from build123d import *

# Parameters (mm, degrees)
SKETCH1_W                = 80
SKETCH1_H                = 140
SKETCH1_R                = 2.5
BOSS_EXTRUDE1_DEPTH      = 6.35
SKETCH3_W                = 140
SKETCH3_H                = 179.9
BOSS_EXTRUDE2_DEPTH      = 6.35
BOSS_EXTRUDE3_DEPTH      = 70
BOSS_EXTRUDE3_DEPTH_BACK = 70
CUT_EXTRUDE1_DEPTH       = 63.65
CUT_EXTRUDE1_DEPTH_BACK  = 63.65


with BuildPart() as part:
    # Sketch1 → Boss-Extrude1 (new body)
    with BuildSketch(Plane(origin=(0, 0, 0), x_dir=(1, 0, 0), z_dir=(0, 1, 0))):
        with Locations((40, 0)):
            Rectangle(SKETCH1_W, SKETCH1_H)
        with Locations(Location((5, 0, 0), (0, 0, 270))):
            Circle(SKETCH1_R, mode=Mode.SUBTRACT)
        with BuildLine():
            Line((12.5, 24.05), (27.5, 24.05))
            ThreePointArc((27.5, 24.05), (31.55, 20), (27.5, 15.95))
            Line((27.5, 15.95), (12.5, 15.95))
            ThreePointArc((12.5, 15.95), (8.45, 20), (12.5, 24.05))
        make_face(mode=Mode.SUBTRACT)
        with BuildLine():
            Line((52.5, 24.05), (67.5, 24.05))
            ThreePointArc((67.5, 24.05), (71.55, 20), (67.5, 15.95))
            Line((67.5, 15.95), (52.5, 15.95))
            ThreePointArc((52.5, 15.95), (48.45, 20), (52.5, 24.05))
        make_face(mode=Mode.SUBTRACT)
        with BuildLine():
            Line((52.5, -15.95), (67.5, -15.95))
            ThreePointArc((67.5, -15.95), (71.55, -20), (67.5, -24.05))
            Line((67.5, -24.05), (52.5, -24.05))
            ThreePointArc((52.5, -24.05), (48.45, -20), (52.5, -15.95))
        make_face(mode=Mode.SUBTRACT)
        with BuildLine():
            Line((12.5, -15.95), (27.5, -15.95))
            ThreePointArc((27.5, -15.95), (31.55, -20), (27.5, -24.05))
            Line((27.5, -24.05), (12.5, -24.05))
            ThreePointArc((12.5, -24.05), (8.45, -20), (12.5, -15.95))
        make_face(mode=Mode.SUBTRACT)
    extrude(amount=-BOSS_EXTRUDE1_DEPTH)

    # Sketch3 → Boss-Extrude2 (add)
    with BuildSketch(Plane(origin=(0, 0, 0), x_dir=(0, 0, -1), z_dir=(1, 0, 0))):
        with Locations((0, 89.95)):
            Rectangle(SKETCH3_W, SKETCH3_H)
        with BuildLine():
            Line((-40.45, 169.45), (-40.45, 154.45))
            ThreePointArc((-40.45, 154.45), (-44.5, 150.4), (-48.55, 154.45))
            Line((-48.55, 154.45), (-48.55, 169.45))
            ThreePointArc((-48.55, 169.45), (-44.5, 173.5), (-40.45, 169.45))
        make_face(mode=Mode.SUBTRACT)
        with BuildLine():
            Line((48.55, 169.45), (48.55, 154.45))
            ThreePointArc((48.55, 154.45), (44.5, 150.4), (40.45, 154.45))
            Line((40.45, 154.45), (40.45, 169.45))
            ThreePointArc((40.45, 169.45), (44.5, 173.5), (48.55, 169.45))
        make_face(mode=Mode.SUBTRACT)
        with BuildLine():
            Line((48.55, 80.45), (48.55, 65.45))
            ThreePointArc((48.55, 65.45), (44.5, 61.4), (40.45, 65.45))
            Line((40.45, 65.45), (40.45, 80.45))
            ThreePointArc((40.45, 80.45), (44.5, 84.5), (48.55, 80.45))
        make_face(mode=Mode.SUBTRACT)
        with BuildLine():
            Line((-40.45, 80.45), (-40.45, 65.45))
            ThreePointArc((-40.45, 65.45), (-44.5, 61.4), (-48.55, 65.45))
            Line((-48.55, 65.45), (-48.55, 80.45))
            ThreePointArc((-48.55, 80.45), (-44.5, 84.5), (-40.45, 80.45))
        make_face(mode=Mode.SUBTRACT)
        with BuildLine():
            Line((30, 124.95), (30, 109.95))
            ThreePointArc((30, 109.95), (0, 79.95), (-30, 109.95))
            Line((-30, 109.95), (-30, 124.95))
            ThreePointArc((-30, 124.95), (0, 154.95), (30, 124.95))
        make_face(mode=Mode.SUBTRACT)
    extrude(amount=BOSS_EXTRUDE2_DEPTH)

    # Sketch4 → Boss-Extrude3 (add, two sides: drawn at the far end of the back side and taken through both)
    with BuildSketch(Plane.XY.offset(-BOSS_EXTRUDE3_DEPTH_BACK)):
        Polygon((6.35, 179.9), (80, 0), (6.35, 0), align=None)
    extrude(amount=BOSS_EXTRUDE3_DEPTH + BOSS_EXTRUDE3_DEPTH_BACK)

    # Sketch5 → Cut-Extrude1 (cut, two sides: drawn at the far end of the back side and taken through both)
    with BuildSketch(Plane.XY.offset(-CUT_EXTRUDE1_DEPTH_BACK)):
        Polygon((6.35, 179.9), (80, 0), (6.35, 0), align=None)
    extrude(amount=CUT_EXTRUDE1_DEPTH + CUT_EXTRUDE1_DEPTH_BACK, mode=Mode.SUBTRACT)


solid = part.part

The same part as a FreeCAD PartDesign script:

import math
import FreeCAD as App
import Part
import Sketcher
from FreeCAD import Vector
Q = App.Units.Quantity


def add_polygon(sketch, points):
    """Adds a closed chain of lines whose ends are joined by coincident constraints."""
    first, n = sketch.GeometryCount, len(points)
    for a, b in zip(points, points[1:] + points[:1]):
        sketch.addGeometry(Part.LineSegment(App.Vector(*a, 0), App.Vector(*b, 0)), False)
    for i in range(n):
        sketch.addConstraint(Sketcher.Constraint("Coincident", first + i, 2, first + (i + 1) % n, 1))

doc = App.newDocument("Part")
body = doc.addObject("PartDesign::Body", "Body")

sketch1 = body.newObject("Sketcher::SketchObject", "Sketch")
sketch1.AttachmentSupport = (doc.getObject("XZ_Plane"), [""])
sketch1.MapMode = "FlatFace"
add_polygon(sketch1, [(0, -70), (0, 70), (80, 70), (80, -70)])
sketch1.addGeometry(Part.ArcOfCircle(Part.Circle(Vector(12.5, 20, 0), Vector(0, 0, 1), 4), math.radians(90), math.radians(270)), False)
sketch1.addGeometry(Part.LineSegment(Vector(12.5, 15.9, 0), Vector(27.5, 15.9, 0)), False)
sketch1.addGeometry(Part.ArcOfCircle(Part.Circle(Vector(27.5, 20, 0), Vector(0, 0, 1), 4), math.radians(-90), math.radians(90)), False)
sketch1.addGeometry(Part.LineSegment(Vector(27.5, 24.1, 0), Vector(12.5, 24.1, 0)), False)
sketch1.addGeometry(Part.Circle(Vector(5, 0, 0), Vector(0, 0, 1), 2.5), False)
sketch1.addGeometry(Part.ArcOfCircle(Part.Circle(Vector(52.5, 20, 0), Vector(0, 0, 1), 4), math.radians(90), math.radians(270)), False)
sketch1.addGeometry(Part.LineSegment(Vector(52.5, 15.9, 0), Vector(67.5, 15.9, 0)), False)
sketch1.addGeometry(Part.ArcOfCircle(Part.Circle(Vector(67.5, 20, 0), Vector(0, 0, 1), 4), math.radians(-90), math.radians(90)), False)
sketch1.addGeometry(Part.LineSegment(Vector(67.5, 24.1, 0), Vector(52.5, 24.1, 0)), False)
sketch1.addGeometry(Part.ArcOfCircle(Part.Circle(Vector(12.5, -20, 0), Vector(0, 0, 1), 4), math.radians(90), math.radians(270)), False)
sketch1.addGeometry(Part.LineSegment(Vector(12.5, -24.1, 0), Vector(27.5, -24.1, 0)), False)
sketch1.addGeometry(Part.ArcOfCircle(Part.Circle(Vector(27.5, -20, 0), Vector(0, 0, 1), 4), math.radians(-90), math.radians(90)), False)
sketch1.addGeometry(Part.LineSegment(Vector(27.5, -15.9, 0), Vector(12.5, -15.9, 0)), False)
sketch1.addGeometry(Part.ArcOfCircle(Part.Circle(Vector(52.5, -20, 0), Vector(0, 0, 1), 4), math.radians(90), math.radians(270)), False)
sketch1.addGeometry(Part.LineSegment(Vector(52.5, -24.1, 0), Vector(67.5, -24.1, 0)), False)
sketch1.addGeometry(Part.ArcOfCircle(Part.Circle(Vector(67.5, -20, 0), Vector(0, 0, 1), 4), math.radians(-90), math.radians(90)), False)
sketch1.addGeometry(Part.LineSegment(Vector(67.5, -15.9, 0), Vector(52.5, -15.9, 0)), False)
sketch1.addConstraint([
    Sketcher.Constraint("Tangent", 4, 2, 5, 1),
    Sketcher.Constraint("Tangent", 5, 2, 6, 1),
    Sketcher.Constraint("Tangent", 6, 2, 7, 1),
    Sketcher.Constraint("Tangent", 7, 2, 4, 1),
    Sketcher.Constraint("Tangent", 9, 2, 10, 1),
    Sketcher.Constraint("Tangent", 10, 2, 11, 1),
    Sketcher.Constraint("Tangent", 11, 2, 12, 1),
    Sketcher.Constraint("Tangent", 12, 2, 9, 1),
    Sketcher.Constraint("Tangent", 13, 2, 14, 1),
    Sketcher.Constraint("Tangent", 14, 2, 15, 1),
    Sketcher.Constraint("Tangent", 15, 2, 16, 1),
    Sketcher.Constraint("Tangent", 16, 2, 13, 1),
    Sketcher.Constraint("Tangent", 17, 2, 18, 1),
    Sketcher.Constraint("Tangent", 18, 2, 19, 1),
    Sketcher.Constraint("Tangent", 19, 2, 20, 1),
    Sketcher.Constraint("Tangent", 20, 2, 17, 1),
    Sketcher.Constraint("Vertical", 0),
    Sketcher.Constraint("Horizontal", 1),
    Sketcher.Constraint("Vertical", 2),
    Sketcher.Constraint("Horizontal", 3),
    Sketcher.Constraint("Horizontal", 5),
    Sketcher.Constraint("Horizontal", 7),
    Sketcher.Constraint("Horizontal", 10),
    Sketcher.Constraint("Horizontal", 12),
    Sketcher.Constraint("Horizontal", 14),
    Sketcher.Constraint("Horizontal", 16),
    Sketcher.Constraint("Horizontal", 18),
    Sketcher.Constraint("Horizontal", 20),
    Sketcher.Constraint("Equal", 6, 9),
    Sketcher.Constraint("Equal", 11, 13),
    Sketcher.Constraint("Equal", 15, 17),
    Sketcher.Constraint("Symmetric", 0, 2, 3, 2, -1, 1),
    Sketcher.Constraint("Symmetric", 4, 3, 13, 3, -1),
    Sketcher.Constraint("Symmetric", 9, 3, 17, 3, -1),
    Sketcher.Constraint("PointOnObject", 8, 3, -1),
    Sketcher.Constraint("Horizontal", 6, 3, 9, 3),
    Sketcher.Constraint("Vertical", 6, 3, 15, 3),
    Sketcher.Constraint("Vertical", 11, 3, 19, 3),
    Sketcher.Constraint("Equal", 7, 10),
    Sketcher.Constraint("Diameter", 8, Q("5 mm")),
    Sketcher.Constraint("DistanceX", 1, 1, 1, 2, Q("80 mm")),
    Sketcher.Constraint("DistanceX", 5, 1, 5, 2, Q("15 mm")),
    Sketcher.Constraint("DistanceY", 0, 1, 0, 2, Q("140 mm")),
    Sketcher.Constraint("Radius", 4, Q("4.05 mm")),
    Sketcher.Constraint("DistanceY", -1, 1, 4, 3, Q("20 mm")),
    Sketcher.Constraint("DistanceX", -1, 1, 8, 3, Q("5 mm")),
    Sketcher.Constraint("DistanceX", 6, 3, 9, 3, Q("25 mm")),
    Sketcher.Constraint("DistanceX", -1, 1, 4, 3, Q("12.5 mm")),
])
pad1 = body.newObject("PartDesign::Pad", "Pad")
pad1.Profile = sketch1
pad1.Length = 6.35

sketch2 = body.newObject("Sketcher::SketchObject", "Sketch001")
sketch2.AttachmentSupport = (doc.getObject("YZ_Plane"), [""])
sketch2.MapMode = "FlatFace"
add_polygon(sketch2, [(179.9, 70), (0, 70), (0, -70), (179.9, -70)])
sketch2.addGeometry(Part.ArcOfCircle(Part.Circle(Vector(80.5, 44.5, 0), Vector(0, 0, 1), 4), math.radians(-90), math.radians(90)), False)
sketch2.addGeometry(Part.LineSegment(Vector(80.5, 40.5, 0), Vector(65.5, 40.5, 0)), False)
sketch2.addGeometry(Part.ArcOfCircle(Part.Circle(Vector(65.5, 44.5, 0), Vector(0, 0, 1), 4), math.radians(90), math.radians(270)), False)
sketch2.addGeometry(Part.LineSegment(Vector(65.5, 48.5, 0), Vector(80.5, 48.5, 0)), False)
sketch2.addGeometry(Part.ArcOfCircle(Part.Circle(Vector(80.5, -44.5, 0), Vector(0, 0, 1), 4), math.radians(-90), math.radians(90)), False)
sketch2.addGeometry(Part.LineSegment(Vector(80.5, -48.5, 0), Vector(65.5, -48.5, 0)), False)
sketch2.addGeometry(Part.ArcOfCircle(Part.Circle(Vector(65.5, -44.5, 0), Vector(0, 0, 1), 4), math.radians(90), math.radians(270)), False)
sketch2.addGeometry(Part.LineSegment(Vector(65.5, -40.5, 0), Vector(80.5, -40.5, 0)), False)
sketch2.addGeometry(Part.ArcOfCircle(Part.Circle(Vector(169.4, 44.5, 0), Vector(0, 0, 1), 4), math.radians(-90), math.radians(90)), False)
sketch2.addGeometry(Part.LineSegment(Vector(169.4, 40.5, 0), Vector(154.4, 40.5, 0)), False)
sketch2.addGeometry(Part.ArcOfCircle(Part.Circle(Vector(154.4, 44.5, 0), Vector(0, 0, 1), 4), math.radians(90), math.radians(270)), False)
sketch2.addGeometry(Part.LineSegment(Vector(154.4, 48.5, 0), Vector(169.4, 48.5, 0)), False)
sketch2.addGeometry(Part.ArcOfCircle(Part.Circle(Vector(125, 0, 0), Vector(0, 0, 1), 30), math.radians(-90), math.radians(90)), False)
sketch2.addGeometry(Part.LineSegment(Vector(125, -30, 0), Vector(110, -30, 0)), False)
sketch2.addGeometry(Part.ArcOfCircle(Part.Circle(Vector(110, 0, 0), Vector(0, 0, 1), 30), math.radians(90), math.radians(270)), False)
sketch2.addGeometry(Part.LineSegment(Vector(110, 30, 0), Vector(125, 30, 0)), False)
sketch2.addGeometry(Part.ArcOfCircle(Part.Circle(Vector(169.4, -44.5, 0), Vector(0, 0, 1), 4), math.radians(-90), math.radians(90)), False)
sketch2.addGeometry(Part.LineSegment(Vector(169.4, -48.5, 0), Vector(154.4, -48.5, 0)), False)
sketch2.addGeometry(Part.ArcOfCircle(Part.Circle(Vector(154.4, -44.5, 0), Vector(0, 0, 1), 4), math.radians(90), math.radians(270)), False)
sketch2.addGeometry(Part.LineSegment(Vector(154.4, -40.5, 0), Vector(169.4, -40.5, 0)), False)
sketch2.addConstraint([
    Sketcher.Constraint("Tangent", 4, 1, 5, 1),
    Sketcher.Constraint("Tangent", 5, 2, 6, 2),
    Sketcher.Constraint("Tangent", 6, 1, 7, 1),
    Sketcher.Constraint("Tangent", 7, 2, 4, 2),
    Sketcher.Constraint("Tangent", 8, 1, 9, 1),
    Sketcher.Constraint("Tangent", 9, 2, 10, 2),
    Sketcher.Constraint("Tangent", 10, 1, 11, 1),
    Sketcher.Constraint("Tangent", 11, 2, 8, 2),
    Sketcher.Constraint("Tangent", 12, 1, 13, 1),
    Sketcher.Constraint("Tangent", 13, 2, 14, 2),
    Sketcher.Constraint("Tangent", 14, 1, 15, 1),
    Sketcher.Constraint("Tangent", 15, 2, 12, 2),
    Sketcher.Constraint("Tangent", 16, 1, 17, 1),
    Sketcher.Constraint("Tangent", 17, 2, 18, 2),
    Sketcher.Constraint("Tangent", 18, 1, 19, 1),
    Sketcher.Constraint("Tangent", 19, 2, 16, 2),
    Sketcher.Constraint("Tangent", 20, 1, 21, 1),
    Sketcher.Constraint("Tangent", 21, 2, 22, 2),
    Sketcher.Constraint("Tangent", 22, 1, 23, 1),
    Sketcher.Constraint("Tangent", 23, 2, 20, 2),
    Sketcher.Constraint("Horizontal", 0),
    Sketcher.Constraint("Vertical", 1),
    Sketcher.Constraint("Horizontal", 2),
    Sketcher.Constraint("Vertical", 3),
    Sketcher.Constraint("Horizontal", 5),
    Sketcher.Constraint("Horizontal", 7),
    Sketcher.Constraint("Horizontal", 9),
    Sketcher.Constraint("Horizontal", 11),
    Sketcher.Constraint("Horizontal", 13),
    Sketcher.Constraint("Horizontal", 15),
    Sketcher.Constraint("Horizontal", 17),
    Sketcher.Constraint("Horizontal", 19),
    Sketcher.Constraint("Horizontal", 21),
    Sketcher.Constraint("Horizontal", 23),
    Sketcher.Constraint("Equal", 6, 8),
    Sketcher.Constraint("Equal", 10, 12),
    Sketcher.Constraint("Equal", 14, 20),
    Sketcher.Constraint("Symmetric", 0, 2, 1, 2, -1, 1),
    Sketcher.Constraint("Symmetric", 4, 3, 8, 3, -1),
    Sketcher.Constraint("Symmetric", 12, 3, 20, 3, -1),
    Sketcher.Constraint("PointOnObject", 16, 3, -1),
    Sketcher.Constraint("Horizontal", 6, 3, 12, 3),
    Sketcher.Constraint("Vertical", 6, 3, 10, 3),
    Sketcher.Constraint("Vertical", 14, 3, 22, 3),
    Sketcher.Constraint("Equal", 11, 13),
    Sketcher.Constraint("Equal", 15, 17),
    Sketcher.Constraint("Radius", 16, Q("30 mm")),
    Sketcher.Constraint("DistanceX", 5, 2, 5, 1, Q("15 mm")),
    Sketcher.Constraint("DistanceY", 1, 2, 1, 1, Q("140 mm")),
    Sketcher.Constraint("Radius", 4, Q("4.05 mm")),
    Sketcher.Constraint("DistanceX", 0, 2, 0, 1, Q("179.9 mm")),
    Sketcher.Constraint("DistanceY", 8, 3, 4, 3, Q("89 mm")),
    Sketcher.Constraint("DistanceX", 4, 3, 12, 3, Q("89 mm")),
    Sketcher.Constraint("DistanceX", 16, 3, 14, 3, Q("29.5 mm")),
    Sketcher.Constraint("DistanceX", -1, 1, 4, 3, Q("80.45 mm")),
])
pad2 = body.newObject("PartDesign::Pad", "Pad001")
pad2.Profile = sketch2
pad2.Length = 6.35

sketch3 = body.newObject("Sketcher::SketchObject", "Sketch002")
sketch3.AttachmentSupport = (doc.getObject("XY_Plane"), [""])
sketch3.MapMode = "FlatFace"
add_polygon(sketch3, [(80, 0), (6, 180), (6, 0)])
sketch3.addConstraint([
    Sketcher.Constraint("Vertical", 1),
    Sketcher.Constraint("Horizontal", 2),
    Sketcher.Constraint("PointOnObject", 1, 2, -1),
    Sketcher.Constraint("DistanceY", 1, 2, 1, 1, Q("179.9 mm")),
    Sketcher.Constraint("DistanceX", -1, 1, 2, 2, Q("80 mm")),
    Sketcher.Constraint("DistanceX", 2, 1, 2, 2, Q("73.65 mm")),
])
pad3 = body.newObject("PartDesign::Pad", "Pad002")
pad3.Profile = sketch3
pad3.Type = "TwoLengths"
pad3.Length = 70
pad3.Length2 = 70

sketch4 = body.newObject("Sketcher::SketchObject", "Sketch003")
sketch4.AttachmentSupport = (doc.getObject("XY_Plane"), [""])
sketch4.MapMode = "FlatFace"
add_polygon(sketch4, [(80, 0), (6, 180), (6, 0)])
sketch4.addConstraint([
    Sketcher.Constraint("Vertical", 1),
    Sketcher.Constraint("Horizontal", 2),
    Sketcher.Constraint("PointOnObject", 1, 2, -1),
    Sketcher.Constraint("DistanceY", 1, 2, 1, 1, Q("179.9 mm")),
    Sketcher.Constraint("DistanceX", -1, 1, 2, 2, Q("80 mm")),
    Sketcher.Constraint("DistanceX", 2, 1, 2, 2, Q("73.65 mm")),
])
pocket1 = body.newObject("PartDesign::Pocket", "Pocket")
pocket1.Profile = sketch4
pocket1.Type = "TwoLengths"
pocket1.Length = 63.65
pocket1.Length2 = 63.65
pocket1.Reversed = True

doc.recompute()
